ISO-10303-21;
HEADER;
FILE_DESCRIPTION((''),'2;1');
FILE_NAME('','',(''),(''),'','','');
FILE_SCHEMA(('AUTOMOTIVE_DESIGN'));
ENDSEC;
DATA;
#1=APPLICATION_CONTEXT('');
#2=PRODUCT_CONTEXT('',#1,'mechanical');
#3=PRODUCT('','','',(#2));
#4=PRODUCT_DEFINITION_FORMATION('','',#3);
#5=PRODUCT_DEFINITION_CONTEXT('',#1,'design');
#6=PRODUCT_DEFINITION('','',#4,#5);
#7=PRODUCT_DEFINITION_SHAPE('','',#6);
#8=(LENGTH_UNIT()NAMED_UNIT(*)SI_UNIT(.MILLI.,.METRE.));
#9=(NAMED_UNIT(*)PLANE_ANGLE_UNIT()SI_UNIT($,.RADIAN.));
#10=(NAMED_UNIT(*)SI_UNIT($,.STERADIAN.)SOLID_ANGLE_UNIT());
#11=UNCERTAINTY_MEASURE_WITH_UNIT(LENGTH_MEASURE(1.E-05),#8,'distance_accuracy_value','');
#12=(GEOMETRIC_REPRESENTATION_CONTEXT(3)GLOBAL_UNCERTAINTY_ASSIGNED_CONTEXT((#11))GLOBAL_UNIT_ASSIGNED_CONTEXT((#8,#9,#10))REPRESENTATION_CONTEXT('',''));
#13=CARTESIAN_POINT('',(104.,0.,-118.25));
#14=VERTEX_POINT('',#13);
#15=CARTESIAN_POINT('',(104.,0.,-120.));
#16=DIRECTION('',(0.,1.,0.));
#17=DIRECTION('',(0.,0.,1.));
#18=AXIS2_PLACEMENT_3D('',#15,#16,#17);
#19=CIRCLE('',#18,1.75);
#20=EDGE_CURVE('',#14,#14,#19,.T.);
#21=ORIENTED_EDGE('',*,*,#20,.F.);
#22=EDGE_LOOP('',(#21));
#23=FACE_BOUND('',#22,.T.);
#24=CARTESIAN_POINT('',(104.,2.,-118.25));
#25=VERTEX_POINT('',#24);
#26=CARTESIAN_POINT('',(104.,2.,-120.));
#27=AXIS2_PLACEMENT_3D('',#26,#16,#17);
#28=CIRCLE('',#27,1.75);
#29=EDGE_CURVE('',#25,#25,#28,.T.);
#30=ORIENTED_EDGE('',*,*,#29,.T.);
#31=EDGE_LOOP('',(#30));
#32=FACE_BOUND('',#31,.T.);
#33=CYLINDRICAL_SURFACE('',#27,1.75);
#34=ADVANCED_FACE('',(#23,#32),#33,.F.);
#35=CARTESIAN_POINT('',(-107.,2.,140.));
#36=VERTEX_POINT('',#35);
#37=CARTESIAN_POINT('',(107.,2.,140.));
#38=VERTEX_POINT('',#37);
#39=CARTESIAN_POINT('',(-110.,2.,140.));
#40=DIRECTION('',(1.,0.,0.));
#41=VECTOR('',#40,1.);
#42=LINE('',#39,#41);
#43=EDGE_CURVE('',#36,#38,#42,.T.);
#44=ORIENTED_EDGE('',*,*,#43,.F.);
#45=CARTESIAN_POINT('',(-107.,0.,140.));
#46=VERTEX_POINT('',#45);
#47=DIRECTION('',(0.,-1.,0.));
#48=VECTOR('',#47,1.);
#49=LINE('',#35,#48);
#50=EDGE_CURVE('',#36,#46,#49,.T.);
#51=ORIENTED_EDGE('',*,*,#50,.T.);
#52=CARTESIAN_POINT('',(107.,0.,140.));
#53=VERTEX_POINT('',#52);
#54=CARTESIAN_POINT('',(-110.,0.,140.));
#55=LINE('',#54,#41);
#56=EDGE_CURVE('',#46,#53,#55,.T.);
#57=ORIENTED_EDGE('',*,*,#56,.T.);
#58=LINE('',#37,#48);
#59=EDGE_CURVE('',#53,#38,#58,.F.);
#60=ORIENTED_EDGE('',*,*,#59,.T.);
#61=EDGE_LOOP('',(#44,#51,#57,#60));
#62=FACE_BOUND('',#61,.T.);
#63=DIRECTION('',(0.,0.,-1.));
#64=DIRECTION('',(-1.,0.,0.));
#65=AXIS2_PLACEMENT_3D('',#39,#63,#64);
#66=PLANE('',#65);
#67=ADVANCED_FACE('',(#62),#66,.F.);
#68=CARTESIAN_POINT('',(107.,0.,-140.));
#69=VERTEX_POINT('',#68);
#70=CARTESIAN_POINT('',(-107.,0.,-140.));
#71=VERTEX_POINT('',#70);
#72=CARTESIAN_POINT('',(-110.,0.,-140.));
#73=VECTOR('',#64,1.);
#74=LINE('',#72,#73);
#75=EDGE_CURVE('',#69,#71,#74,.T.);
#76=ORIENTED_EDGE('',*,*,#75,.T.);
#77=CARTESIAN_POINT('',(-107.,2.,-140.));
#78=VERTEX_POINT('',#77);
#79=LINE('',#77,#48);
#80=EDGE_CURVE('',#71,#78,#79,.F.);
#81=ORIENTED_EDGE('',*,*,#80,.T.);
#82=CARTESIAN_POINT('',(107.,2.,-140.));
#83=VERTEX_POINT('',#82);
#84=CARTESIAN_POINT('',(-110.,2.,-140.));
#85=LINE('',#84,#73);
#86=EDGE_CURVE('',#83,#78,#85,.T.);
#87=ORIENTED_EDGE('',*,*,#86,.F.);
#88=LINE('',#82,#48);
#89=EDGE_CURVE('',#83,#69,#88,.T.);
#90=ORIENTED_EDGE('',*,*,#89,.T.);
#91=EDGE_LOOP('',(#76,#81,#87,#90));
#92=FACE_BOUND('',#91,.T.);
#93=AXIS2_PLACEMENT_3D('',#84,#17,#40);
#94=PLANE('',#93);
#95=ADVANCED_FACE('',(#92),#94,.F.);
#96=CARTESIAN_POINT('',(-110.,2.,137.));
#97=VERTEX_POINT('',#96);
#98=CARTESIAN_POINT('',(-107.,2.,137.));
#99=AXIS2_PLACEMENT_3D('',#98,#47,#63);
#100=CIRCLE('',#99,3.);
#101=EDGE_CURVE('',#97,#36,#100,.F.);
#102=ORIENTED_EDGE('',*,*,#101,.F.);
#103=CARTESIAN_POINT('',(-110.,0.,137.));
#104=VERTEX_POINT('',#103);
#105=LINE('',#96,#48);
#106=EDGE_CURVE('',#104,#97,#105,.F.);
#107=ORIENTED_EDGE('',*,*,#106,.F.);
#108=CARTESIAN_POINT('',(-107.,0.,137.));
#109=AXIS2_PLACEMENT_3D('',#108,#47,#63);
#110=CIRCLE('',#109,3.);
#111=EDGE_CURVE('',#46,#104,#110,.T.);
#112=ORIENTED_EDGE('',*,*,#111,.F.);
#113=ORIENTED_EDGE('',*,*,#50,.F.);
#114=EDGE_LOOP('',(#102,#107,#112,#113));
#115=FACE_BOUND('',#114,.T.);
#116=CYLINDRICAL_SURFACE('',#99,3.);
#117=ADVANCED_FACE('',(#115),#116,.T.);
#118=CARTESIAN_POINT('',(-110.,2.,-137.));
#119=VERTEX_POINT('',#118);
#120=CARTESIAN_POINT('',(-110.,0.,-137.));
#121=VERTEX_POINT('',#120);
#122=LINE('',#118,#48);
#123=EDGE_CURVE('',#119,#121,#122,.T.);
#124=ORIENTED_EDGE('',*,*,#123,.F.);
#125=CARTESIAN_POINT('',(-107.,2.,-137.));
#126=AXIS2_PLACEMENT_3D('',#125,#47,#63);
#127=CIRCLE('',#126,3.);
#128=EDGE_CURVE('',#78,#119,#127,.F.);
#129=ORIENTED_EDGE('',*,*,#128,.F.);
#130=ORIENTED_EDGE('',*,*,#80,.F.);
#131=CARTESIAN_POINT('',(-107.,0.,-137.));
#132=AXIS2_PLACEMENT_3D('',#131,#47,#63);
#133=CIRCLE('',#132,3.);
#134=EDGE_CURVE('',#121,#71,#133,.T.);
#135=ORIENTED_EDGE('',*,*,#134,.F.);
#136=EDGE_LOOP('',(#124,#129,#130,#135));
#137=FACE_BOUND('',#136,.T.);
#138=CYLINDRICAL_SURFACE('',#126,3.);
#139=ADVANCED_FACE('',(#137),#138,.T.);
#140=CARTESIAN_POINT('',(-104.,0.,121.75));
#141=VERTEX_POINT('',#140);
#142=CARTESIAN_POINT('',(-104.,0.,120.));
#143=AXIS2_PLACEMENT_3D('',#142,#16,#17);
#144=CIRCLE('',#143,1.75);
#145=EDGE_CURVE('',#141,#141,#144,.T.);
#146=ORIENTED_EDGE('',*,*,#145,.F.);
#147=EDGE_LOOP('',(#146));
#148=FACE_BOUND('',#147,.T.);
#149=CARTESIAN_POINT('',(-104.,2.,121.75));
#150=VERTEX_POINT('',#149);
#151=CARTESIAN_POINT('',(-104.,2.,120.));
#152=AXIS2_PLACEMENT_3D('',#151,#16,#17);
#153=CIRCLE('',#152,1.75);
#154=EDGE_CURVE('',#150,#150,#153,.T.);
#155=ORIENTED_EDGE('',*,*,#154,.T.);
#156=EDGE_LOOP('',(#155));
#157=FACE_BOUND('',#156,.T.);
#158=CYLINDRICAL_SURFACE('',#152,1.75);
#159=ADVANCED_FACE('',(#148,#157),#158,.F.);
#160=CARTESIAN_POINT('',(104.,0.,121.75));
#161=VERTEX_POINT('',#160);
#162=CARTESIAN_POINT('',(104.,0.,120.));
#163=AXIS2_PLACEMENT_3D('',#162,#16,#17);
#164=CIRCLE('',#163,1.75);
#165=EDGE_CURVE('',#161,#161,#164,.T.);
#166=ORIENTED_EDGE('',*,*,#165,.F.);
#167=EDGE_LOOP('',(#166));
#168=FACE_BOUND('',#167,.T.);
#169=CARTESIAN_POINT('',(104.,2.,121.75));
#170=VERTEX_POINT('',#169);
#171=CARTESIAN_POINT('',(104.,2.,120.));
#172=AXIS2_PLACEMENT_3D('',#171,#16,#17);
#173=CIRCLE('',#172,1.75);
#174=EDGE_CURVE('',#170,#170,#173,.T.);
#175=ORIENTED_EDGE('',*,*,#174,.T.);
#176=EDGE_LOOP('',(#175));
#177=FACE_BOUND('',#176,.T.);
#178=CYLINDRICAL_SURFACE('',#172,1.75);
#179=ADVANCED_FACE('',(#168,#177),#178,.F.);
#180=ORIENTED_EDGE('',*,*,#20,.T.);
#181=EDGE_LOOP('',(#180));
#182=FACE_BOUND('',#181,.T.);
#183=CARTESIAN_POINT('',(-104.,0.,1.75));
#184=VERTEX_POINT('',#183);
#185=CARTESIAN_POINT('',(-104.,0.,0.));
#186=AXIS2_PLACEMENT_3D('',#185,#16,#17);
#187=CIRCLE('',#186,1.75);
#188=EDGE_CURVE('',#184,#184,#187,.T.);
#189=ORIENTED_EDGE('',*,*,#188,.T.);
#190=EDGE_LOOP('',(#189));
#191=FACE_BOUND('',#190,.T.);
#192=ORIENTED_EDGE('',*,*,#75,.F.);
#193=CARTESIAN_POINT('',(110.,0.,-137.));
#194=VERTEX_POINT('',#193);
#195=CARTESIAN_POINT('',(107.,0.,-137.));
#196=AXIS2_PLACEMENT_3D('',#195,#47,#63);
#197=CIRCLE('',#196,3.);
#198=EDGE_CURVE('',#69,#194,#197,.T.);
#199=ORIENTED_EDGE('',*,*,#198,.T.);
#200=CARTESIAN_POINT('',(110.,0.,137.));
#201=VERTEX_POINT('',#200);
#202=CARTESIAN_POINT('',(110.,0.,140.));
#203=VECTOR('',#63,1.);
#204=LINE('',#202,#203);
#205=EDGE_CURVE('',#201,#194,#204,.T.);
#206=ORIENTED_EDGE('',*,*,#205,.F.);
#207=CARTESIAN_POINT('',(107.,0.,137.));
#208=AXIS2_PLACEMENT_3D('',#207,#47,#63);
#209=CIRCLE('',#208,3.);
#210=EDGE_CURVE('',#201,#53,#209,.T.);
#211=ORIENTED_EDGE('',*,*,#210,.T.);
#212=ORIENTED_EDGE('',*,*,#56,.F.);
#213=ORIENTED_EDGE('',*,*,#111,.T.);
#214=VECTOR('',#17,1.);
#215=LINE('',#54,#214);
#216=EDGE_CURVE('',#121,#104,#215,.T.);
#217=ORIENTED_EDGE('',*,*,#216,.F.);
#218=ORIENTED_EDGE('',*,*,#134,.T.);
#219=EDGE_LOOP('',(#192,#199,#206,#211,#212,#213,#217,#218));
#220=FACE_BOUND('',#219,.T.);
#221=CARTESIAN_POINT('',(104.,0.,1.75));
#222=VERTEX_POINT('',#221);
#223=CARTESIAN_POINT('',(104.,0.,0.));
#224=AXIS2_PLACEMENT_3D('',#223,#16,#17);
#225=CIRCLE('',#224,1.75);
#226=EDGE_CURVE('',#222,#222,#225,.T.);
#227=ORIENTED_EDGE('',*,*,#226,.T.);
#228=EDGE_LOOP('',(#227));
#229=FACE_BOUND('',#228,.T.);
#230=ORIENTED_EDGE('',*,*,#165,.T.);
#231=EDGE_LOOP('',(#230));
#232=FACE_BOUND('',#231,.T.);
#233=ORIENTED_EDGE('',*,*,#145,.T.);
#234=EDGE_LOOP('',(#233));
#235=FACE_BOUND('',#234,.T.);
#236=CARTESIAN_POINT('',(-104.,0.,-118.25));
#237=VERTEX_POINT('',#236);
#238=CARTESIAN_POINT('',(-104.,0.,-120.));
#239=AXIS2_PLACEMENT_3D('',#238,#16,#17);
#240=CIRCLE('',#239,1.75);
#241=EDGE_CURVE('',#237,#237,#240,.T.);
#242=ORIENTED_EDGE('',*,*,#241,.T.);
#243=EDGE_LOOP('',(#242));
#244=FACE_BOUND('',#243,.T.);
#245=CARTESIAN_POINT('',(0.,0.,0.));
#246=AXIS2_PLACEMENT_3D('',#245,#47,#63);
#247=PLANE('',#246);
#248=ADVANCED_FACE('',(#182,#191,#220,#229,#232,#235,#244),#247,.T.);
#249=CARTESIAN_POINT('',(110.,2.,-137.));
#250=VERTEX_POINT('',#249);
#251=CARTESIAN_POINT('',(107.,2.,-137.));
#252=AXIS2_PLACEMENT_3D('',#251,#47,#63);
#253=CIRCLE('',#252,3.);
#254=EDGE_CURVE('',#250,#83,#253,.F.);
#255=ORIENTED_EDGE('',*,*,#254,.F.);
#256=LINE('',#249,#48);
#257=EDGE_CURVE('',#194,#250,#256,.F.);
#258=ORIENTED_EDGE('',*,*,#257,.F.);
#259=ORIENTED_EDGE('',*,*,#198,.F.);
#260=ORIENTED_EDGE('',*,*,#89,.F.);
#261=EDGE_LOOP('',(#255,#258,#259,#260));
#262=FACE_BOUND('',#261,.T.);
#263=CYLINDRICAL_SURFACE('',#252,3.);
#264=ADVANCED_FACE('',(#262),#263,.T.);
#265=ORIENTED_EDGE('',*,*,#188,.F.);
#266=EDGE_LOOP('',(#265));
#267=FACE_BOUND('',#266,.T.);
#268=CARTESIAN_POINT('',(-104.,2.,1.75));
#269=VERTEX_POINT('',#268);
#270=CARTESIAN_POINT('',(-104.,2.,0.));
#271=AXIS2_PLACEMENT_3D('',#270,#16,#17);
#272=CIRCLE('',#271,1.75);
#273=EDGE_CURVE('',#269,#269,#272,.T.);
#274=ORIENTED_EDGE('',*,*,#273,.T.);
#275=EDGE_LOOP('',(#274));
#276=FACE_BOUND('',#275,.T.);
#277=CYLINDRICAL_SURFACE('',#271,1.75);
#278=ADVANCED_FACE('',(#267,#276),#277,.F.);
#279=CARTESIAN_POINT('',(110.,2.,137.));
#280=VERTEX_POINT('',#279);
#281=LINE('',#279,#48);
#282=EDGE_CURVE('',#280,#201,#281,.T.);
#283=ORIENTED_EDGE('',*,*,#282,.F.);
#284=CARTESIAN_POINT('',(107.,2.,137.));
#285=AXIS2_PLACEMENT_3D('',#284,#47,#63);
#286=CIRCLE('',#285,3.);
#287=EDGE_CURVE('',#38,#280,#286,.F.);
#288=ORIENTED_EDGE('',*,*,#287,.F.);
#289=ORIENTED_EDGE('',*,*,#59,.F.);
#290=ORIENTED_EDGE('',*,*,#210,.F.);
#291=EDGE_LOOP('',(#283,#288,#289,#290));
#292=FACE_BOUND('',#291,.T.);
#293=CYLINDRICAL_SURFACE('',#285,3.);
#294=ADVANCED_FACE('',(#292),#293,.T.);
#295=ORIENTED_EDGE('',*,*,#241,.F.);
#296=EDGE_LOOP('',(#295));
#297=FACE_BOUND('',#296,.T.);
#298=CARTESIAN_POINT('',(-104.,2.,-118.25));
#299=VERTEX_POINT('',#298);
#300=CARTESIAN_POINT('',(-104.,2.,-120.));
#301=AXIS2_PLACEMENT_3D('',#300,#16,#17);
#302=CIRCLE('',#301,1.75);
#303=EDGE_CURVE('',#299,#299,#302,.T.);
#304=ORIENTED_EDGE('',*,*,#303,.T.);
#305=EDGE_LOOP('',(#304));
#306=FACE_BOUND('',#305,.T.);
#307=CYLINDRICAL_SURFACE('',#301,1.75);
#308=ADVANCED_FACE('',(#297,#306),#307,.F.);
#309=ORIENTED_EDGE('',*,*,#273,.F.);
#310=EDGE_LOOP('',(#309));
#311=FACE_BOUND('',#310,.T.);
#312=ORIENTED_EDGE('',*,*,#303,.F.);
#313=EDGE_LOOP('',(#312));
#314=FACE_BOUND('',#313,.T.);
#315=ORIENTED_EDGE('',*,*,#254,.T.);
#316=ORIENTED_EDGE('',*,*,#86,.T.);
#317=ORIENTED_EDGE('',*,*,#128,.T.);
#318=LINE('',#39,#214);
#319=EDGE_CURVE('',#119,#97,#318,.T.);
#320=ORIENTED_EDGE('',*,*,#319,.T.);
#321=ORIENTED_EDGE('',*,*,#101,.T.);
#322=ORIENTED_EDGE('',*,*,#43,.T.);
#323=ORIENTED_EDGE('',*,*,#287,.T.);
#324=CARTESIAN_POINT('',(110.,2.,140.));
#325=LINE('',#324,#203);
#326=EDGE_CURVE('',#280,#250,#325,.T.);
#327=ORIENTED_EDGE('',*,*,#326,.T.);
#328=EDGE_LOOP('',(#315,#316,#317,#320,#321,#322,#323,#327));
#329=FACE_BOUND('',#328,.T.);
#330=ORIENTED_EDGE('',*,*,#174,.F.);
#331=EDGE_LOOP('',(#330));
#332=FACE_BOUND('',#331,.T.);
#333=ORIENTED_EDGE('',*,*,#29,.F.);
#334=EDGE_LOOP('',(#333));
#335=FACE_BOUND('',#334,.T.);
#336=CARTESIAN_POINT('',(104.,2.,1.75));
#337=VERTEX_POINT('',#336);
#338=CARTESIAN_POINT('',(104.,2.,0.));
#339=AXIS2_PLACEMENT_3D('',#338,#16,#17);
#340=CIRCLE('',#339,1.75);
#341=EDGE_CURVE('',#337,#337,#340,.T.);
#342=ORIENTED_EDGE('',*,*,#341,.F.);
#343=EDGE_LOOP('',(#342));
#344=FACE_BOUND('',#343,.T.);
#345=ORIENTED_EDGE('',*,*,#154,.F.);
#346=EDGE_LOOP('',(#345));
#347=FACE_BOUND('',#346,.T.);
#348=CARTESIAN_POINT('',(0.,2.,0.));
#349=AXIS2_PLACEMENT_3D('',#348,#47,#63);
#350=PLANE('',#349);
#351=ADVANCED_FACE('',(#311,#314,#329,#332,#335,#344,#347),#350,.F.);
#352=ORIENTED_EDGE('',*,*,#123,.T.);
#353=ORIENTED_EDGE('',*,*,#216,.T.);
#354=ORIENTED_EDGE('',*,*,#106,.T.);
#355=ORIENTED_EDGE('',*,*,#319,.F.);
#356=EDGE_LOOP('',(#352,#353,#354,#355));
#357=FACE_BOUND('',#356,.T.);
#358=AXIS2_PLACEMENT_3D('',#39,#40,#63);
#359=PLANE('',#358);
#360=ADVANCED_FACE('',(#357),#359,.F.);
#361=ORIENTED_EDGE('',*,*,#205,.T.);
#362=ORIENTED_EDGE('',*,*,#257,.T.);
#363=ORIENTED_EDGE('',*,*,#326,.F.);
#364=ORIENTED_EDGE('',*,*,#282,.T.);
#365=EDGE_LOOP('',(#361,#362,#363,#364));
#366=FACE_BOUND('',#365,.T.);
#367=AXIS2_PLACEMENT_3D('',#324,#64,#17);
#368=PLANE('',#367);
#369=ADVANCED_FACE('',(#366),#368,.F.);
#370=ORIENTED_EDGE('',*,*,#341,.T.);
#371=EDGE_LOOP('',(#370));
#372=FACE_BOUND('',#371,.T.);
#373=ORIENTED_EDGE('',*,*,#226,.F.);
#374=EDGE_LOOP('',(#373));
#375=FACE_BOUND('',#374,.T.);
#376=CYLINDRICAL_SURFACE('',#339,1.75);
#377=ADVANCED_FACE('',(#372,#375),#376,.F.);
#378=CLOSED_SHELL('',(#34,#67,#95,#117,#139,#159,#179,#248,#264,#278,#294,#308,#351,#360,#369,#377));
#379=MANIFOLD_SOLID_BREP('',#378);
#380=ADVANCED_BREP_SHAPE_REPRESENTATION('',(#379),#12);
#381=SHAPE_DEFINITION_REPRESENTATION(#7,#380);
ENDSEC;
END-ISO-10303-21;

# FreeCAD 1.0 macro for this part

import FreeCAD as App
import Part
import Sketcher
from FreeCAD import Vector
Q = App.Units.Quantity


def edges_at(feature, points):
    """Names of the edges that pass closest to the given points."""
    edges = feature.Shape.Edges
    near = lambda p: min(range(len(edges)), key=lambda i: edges[i].distToShape(Part.Vertex(*p))[0])
    return sorted({f"Edge{near(p) + 1}" for p in points})

doc = App.newDocument("Part")
body = doc.addObject("PartDesign::Body", "Body")

sketch1 = body.newObject("Sketcher::SketchObject", "Sketch")
sketch1.AttachmentSupport = (doc.getObject("XZ_Plane"), [""])
sketch1.MapMode = "FlatFace"
sketch1.addGeometry(Part.LineSegment(Vector(-110, -140, 0), Vector(-110, 140, 0)), False)
sketch1.addGeometry(Part.LineSegment(Vector(-110, 140, 0), Vector(110, 140, 0)), False)
sketch1.addGeometry(Part.LineSegment(Vector(110, 140, 0), Vector(110, -140, 0)), False)
sketch1.addGeometry(Part.LineSegment(Vector(110, -140, 0), Vector(-110, -140, 0)), False)
sketch1.addConstraint(Sketcher.Constraint("Coincident", 0, 2, 1, 1))
sketch1.addConstraint(Sketcher.Constraint("Coincident", 1, 2, 2, 1))
sketch1.addConstraint(Sketcher.Constraint("Coincident", 2, 2, 3, 1))
sketch1.addConstraint(Sketcher.Constraint("Coincident", 3, 2, 0, 1))
sketch1.addConstraint(Sketcher.Constraint("Vertical", 0))
sketch1.addConstraint(Sketcher.Constraint("Horizontal", 1))
sketch1.addConstraint(Sketcher.Constraint("Vertical", 2))
sketch1.addConstraint(Sketcher.Constraint("Horizontal", 3))
sketch1.addConstraint(Sketcher.Constraint("Symmetric", 0, 2, 2, 2, -1, 1))
sketch1.addConstraint(Sketcher.Constraint("DistanceX", 1, 1, 1, 2, Q("220 mm")))
sketch1.addConstraint(Sketcher.Constraint("DistanceY", 0, 1, 0, 2, Q("280 mm")))
pad1 = body.newObject("PartDesign::Pad", "Pad")
pad1.Profile = sketch1
pad1.Length = 2
pad1.Reversed = True

sketch2 = body.newObject("Sketcher::SketchObject", "Sketch001")
sketch2.AttachmentSupport = (doc.getObject("XZ_Plane"), [""])
sketch2.MapMode = "FlatFace"
sketch2.AttachmentOffset = App.Placement(Vector(0, 0, -2), App.Rotation())
sketch2.addGeometry(Part.Circle(Vector(-104, 120, 0), Vector(0, 0, 1), 1.75), False)
sketch2.addGeometry(Part.Circle(Vector(104, 120, 0), Vector(0, 0, 1), 1.75), False)
sketch2.addGeometry(Part.Circle(Vector(104, -120, 0), Vector(0, 0, 1), 1.75), False)
sketch2.addGeometry(Part.Circle(Vector(-104, -120, 0), Vector(0, 0, 1), 1.75), False)
sketch2.addGeometry(Part.Circle(Vector(104, 0, 0), Vector(0, 0, 1), 1.75), False)
sketch2.addGeometry(Part.Circle(Vector(-104, 0, 0), Vector(0, 0, 1), 1.75), False)
sketch2.addConstraint(Sketcher.Constraint("Equal", 0, 1))
sketch2.addConstraint(Sketcher.Constraint("Equal", 1, 2))
sketch2.addConstraint(Sketcher.Constraint("Equal", 2, 3))
sketch2.addConstraint(Sketcher.Constraint("Equal", 3, 4))
sketch2.addConstraint(Sketcher.Constraint("Equal", 4, 5))
sketch2.addConstraint(Sketcher.Constraint("Symmetric", 0, 3, 2, 3, -1, 1))
sketch2.addConstraint(Sketcher.Constraint("Symmetric", 1, 3, 3, 3, -1, 1))
sketch2.addConstraint(Sketcher.Constraint("Symmetric", 4, 3, 5, 3, -1, 1))
sketch2.addConstraint(Sketcher.Constraint("Symmetric", 0, 3, 1, 3, -2))
sketch2.addConstraint(Sketcher.Constraint("PointOnObject", 4, 3, -1))
sketch2.addConstraint(Sketcher.Constraint("Vertical", 2, 3, 4, 3))
sketch2.addConstraint(Sketcher.Constraint("Diameter", 0, Q("3.5 mm")))
sketch2.addConstraint(Sketcher.Constraint("DistanceX", 0, 3, -1, 1, Q("104 mm")))
sketch2.addConstraint(Sketcher.Constraint("DistanceY", -1, 1, 0, 3, Q("120 mm")))
doc.recompute()
hole = body.newObject("PartDesign::Hole", "Hole")
hole.Profile = sketch2
hole.ThreadType = "None"
hole.Diameter = 3.5
hole.DepthType = "ThroughAll"
hole.Reversed = True
doc.recompute()

fillet = body.newObject("PartDesign::Fillet", "Fillet")
fillet.Base = (hole, edges_at(hole, [
    (110, 1, 140),
    (-110, 1, 140),
    (-110, 1, -140),
    (110, 1, -140),
]))
fillet.Radius = 3

doc.recompute()
